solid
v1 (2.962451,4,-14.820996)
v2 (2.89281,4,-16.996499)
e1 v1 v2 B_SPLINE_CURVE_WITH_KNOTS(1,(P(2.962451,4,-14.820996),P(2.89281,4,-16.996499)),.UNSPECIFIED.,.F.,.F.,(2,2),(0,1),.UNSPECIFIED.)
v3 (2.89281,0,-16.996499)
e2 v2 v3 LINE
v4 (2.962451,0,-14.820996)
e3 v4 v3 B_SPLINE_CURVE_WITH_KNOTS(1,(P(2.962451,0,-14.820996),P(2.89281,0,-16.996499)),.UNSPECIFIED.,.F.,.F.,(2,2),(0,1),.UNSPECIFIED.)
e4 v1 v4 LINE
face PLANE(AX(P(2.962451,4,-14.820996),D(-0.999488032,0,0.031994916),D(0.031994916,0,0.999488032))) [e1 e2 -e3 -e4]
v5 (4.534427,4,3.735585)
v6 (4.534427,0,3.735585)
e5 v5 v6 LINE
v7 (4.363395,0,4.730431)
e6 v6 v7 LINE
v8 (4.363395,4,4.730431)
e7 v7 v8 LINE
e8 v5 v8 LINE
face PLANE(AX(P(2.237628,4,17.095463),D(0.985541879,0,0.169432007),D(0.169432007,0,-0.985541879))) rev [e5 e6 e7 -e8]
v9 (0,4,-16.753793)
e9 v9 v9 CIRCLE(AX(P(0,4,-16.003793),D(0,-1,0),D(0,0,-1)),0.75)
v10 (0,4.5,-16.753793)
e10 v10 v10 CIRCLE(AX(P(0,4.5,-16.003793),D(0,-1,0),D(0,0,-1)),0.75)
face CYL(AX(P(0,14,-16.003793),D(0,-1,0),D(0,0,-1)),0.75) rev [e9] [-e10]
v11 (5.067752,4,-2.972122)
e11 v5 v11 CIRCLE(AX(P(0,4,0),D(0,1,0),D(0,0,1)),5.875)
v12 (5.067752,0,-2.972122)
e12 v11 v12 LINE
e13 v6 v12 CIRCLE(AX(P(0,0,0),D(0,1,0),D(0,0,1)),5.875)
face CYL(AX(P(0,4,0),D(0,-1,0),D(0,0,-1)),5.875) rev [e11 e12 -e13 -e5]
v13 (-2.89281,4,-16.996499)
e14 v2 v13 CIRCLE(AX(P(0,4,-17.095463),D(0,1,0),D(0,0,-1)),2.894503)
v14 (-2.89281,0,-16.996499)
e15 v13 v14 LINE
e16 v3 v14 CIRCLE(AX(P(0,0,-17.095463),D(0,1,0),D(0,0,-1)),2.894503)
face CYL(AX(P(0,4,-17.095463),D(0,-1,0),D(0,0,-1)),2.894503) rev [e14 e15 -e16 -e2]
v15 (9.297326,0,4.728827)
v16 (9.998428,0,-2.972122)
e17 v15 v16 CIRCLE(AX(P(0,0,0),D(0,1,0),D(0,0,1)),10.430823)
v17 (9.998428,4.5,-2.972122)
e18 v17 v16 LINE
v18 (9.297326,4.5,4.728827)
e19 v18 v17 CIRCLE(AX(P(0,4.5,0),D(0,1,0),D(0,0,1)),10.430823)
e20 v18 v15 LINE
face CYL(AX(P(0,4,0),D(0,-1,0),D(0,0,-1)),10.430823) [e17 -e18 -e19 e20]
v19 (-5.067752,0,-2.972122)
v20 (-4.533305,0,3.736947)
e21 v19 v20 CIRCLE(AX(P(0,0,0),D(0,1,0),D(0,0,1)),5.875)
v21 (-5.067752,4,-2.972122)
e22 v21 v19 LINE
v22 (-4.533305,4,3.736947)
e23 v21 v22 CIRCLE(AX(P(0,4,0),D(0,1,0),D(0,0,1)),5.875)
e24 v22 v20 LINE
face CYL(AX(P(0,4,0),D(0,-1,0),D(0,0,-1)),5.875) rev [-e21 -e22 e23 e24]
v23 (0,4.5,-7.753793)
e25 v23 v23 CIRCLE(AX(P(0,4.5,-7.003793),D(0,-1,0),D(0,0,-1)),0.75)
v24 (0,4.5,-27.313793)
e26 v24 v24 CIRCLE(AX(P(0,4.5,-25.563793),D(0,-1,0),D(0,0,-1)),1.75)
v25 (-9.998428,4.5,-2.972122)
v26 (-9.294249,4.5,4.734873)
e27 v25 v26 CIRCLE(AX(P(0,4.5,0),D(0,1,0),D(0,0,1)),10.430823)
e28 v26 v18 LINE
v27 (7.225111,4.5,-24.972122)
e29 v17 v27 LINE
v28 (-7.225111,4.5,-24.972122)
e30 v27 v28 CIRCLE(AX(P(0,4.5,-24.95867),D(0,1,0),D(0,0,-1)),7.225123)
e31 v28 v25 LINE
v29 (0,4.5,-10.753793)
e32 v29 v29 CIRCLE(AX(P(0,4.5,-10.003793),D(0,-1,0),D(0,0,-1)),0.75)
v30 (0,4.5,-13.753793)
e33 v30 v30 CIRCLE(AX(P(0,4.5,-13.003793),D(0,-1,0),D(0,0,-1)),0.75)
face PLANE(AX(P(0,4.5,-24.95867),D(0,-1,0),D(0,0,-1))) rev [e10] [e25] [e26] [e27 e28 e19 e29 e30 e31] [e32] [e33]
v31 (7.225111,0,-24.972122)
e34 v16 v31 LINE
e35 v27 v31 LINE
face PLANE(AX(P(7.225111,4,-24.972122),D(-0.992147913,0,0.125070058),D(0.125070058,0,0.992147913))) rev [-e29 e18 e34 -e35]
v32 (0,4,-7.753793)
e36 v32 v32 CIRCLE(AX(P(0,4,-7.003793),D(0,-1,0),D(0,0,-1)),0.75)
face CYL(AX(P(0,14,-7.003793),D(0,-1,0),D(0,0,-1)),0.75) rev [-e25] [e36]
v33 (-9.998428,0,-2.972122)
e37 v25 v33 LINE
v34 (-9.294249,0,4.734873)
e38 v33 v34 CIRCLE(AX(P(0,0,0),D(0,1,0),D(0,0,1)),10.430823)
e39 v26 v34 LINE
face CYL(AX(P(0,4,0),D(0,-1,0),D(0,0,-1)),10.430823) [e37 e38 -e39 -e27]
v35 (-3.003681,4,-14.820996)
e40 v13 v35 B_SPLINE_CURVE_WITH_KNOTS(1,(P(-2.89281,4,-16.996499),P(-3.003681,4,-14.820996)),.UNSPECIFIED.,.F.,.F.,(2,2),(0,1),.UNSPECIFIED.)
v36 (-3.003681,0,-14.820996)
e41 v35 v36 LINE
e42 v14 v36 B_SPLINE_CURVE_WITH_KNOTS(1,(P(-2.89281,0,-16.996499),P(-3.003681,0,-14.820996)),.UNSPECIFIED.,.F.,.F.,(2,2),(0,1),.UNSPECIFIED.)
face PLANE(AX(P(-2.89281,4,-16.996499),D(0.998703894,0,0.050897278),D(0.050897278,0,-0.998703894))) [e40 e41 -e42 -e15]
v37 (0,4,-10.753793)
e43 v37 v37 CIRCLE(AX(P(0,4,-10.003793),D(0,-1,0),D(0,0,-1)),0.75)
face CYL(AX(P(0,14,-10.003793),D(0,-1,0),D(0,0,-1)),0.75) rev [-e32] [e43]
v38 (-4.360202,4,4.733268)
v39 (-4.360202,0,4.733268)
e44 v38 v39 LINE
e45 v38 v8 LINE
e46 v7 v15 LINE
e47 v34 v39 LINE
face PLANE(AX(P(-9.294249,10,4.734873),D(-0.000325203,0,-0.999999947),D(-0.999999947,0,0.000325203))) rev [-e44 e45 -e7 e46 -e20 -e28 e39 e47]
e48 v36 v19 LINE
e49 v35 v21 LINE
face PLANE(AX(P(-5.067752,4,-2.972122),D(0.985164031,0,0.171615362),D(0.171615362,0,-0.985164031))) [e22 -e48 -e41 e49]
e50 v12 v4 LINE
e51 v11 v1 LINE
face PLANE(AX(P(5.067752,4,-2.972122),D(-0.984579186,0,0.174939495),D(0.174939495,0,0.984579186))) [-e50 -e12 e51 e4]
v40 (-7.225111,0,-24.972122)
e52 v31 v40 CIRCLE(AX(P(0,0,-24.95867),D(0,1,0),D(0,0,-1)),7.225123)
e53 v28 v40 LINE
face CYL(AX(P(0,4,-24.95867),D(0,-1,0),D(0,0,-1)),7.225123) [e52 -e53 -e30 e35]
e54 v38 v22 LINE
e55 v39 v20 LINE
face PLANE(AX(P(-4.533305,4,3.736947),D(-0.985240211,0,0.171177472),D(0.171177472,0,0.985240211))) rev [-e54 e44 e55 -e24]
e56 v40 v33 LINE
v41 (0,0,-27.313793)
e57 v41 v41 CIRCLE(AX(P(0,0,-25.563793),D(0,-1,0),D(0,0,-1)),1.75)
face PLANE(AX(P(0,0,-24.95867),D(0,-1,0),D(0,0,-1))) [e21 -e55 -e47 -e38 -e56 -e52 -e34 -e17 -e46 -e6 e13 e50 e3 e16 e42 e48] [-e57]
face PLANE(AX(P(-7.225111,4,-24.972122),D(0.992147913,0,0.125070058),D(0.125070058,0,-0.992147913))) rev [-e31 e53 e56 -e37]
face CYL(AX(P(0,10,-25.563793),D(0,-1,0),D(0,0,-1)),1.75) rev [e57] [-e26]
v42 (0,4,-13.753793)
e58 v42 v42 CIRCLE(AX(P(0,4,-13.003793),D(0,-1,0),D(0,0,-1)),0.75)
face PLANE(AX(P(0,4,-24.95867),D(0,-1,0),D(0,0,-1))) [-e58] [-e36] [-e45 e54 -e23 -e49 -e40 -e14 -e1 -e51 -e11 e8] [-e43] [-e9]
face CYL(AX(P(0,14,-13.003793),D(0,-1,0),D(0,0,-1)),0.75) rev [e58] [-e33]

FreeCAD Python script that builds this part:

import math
import FreeCAD as App
import Part
import Sketcher
from FreeCAD import Vector

doc = App.newDocument("Part")
body = doc.addObject("PartDesign::Body", "Body")

# Sketch on XZ plane
sketch1 = doc.addObject("Sketcher::SketchObject", "Sketch")
body.addObject(sketch1)
sketch1.AttachmentSupport = (doc.XZ_Plane, [""])
sketch1.MapMode = "FlatFace"
sketch1.addGeometry(Part.LineSegment(Vector(-7.2, -25, 0), Vector(-10, -3, 0)), False)
sketch1.addGeometry(Part.ArcOfCircle(Part.Circle(Vector(0, 0, 0), Vector(0, 0, 1), 10.4), math.radians(-17), math.radians(197)), False)
sketch1.addGeometry(Part.LineSegment(Vector(10, -3, 0), Vector(7.2, -25, 0)), False)
sketch1.addGeometry(Part.ArcOfCircle(Part.Circle(Vector(0, -25, 0), Vector(0, 0, 1), 7.2), math.radians(-180), math.radians(0)), False)
sketch1.addGeometry(Part.ArcOfCircle(Part.Circle(Vector(0, 0, 0), Vector(0, 0, 1), 5.9), math.radians(-30), math.radians(210)), False)
sketch1.addGeometry(Part.LineSegment(Vector(-5.1, -3, 0), Vector(-3, -14.8, 0)), False)
sketch1.addGeometry(Part.LineSegment(Vector(-3, -14.8, 0), Vector(-2.9, -17, 0)), False)
sketch1.addGeometry(Part.ArcOfCircle(Part.Circle(Vector(0, -17.1, 0), Vector(0, 0, 1), 2.9), math.radians(178), math.radians(362)), False)
sketch1.addGeometry(Part.LineSegment(Vector(2.9, -17, 0), Vector(3, -14.8, 0)), False)
sketch1.addGeometry(Part.LineSegment(Vector(3, -14.8, 0), Vector(5.1, -3, 0)), False)
sketch1.addConstraint(Sketcher.Constraint("Coincident", 0, 2, 1, 2))
sketch1.addConstraint(Sketcher.Constraint("Coincident", 1, 1, 2, 1))
sketch1.addConstraint(Sketcher.Constraint("Coincident", 2, 2, 3, 2))
sketch1.addConstraint(Sketcher.Constraint("Coincident", 3, 1, 0, 1))
sketch1.addConstraint(Sketcher.Constraint("Coincident", 4, 2, 5, 1))
sketch1.addConstraint(Sketcher.Constraint("Coincident", 5, 2, 6, 1))
sketch1.addConstraint(Sketcher.Constraint("Coincident", 6, 2, 7, 1))
sketch1.addConstraint(Sketcher.Constraint("Coincident", 7, 2, 8, 1))
sketch1.addConstraint(Sketcher.Constraint("Coincident", 8, 2, 9, 1))
sketch1.addConstraint(Sketcher.Constraint("Coincident", 9, 2, 4, 1))
sketch1.addConstraint(Sketcher.Constraint("Coincident", 1, 3, -1, 1))
sketch1.addConstraint(Sketcher.Constraint("Coincident", 4, 3, -1, 1))
sketch1.addConstraint(Sketcher.Constraint("Symmetric", 2, 2, 3, 1, -2))
sketch1.addConstraint(Sketcher.Constraint("Symmetric", 6, 2, 7, 2, -2))
sketch1.addConstraint(Sketcher.Constraint("Horizontal", 0, 2, 1, 1))
sketch1.addConstraint(Sketcher.Constraint("Horizontal", 1, 1, 4, 2))
sketch1.addConstraint(Sketcher.Constraint("Horizontal", 5, 2, 8, 2))
sketch1.addConstraint(Sketcher.Constraint("Horizontal", 4, 2, 9, 2))
sketch1.addConstraint(Sketcher.Constraint("Radius", 4, 5.875))
sketch1.addConstraint(Sketcher.Constraint("DistanceY", 2, 2, 1, 1, 22.0))
sketch1.addConstraint(Sketcher.Constraint("Radius", 1, 10.430823))
sketch1.addConstraint(Sketcher.Constraint("Radius", 3, 7.225123))
sketch1.addConstraint(Sketcher.Constraint("Radius", 7, 2.894503))
sketch1.addConstraint(Sketcher.Constraint("DistanceY", 6, 2, -1, 1, 16.996499))
sketch1.addConstraint(Sketcher.Constraint("DistanceX", 3, 1, 6, 2, 4.3323))
sketch1.addConstraint(Sketcher.Constraint("DistanceX", 8, 2, 9, 2, 2.105301))
sketch1.addConstraint(Sketcher.Constraint("Distance", 5, 12.02731))
sketch1.addConstraint(Sketcher.Constraint("DistanceY", 3, 3, -1, 1, 24.95867))
sketch1.addConstraint(Sketcher.Constraint("DistanceX", 0, 2, -1, 1, 9.998428))
sketch1.addConstraint(Sketcher.Constraint("DistanceX", 5, 2, -1, 1, 3.003681))
pad1 = doc.addObject("PartDesign::Pad", "Pad")
body.addObject(pad1)
pad1.Profile = sketch1
pad1.Length = 4
pad1.Reversed = True

# Sketch on XZ plane
sketch2 = doc.addObject("Sketcher::SketchObject", "Sketch001")
body.addObject(sketch2)
sketch2.AttachmentSupport = (doc.XZ_Plane, [""])
sketch2.MapMode = "FlatFace"
sketch2.AttachmentOffset = App.Placement(Vector(0, 0, -4), App.Rotation())
sketch2.addGeometry(Part.LineSegment(Vector(-7, -25, 0), Vector(-10, -3, 0)), False)
sketch2.addGeometry(Part.ArcOfCircle(Part.Circle(Vector(0, 0, 0), Vector(0, 0, 1), 10), math.radians(-17), math.radians(197)), False)
sketch2.addGeometry(Part.LineSegment(Vector(10, -3, 0), Vector(7, -25, 0)), False)
sketch2.addGeometry(Part.ArcOfCircle(Part.Circle(Vector(0, -25, 0), Vector(0, 0, 1), 7), math.radians(-180), math.radians(0)), False)
sketch2.addConstraint(Sketcher.Constraint("Coincident", 0, 2, 1, 2))
sketch2.addConstraint(Sketcher.Constraint("Coincident", 1, 1, 2, 1))
sketch2.addConstraint(Sketcher.Constraint("Coincident", 2, 2, 3, 2))
sketch2.addConstraint(Sketcher.Constraint("Coincident", 3, 1, 0, 1))
sketch2.addConstraint(Sketcher.Constraint("Coincident", 1, 3, -1, 1))
sketch2.addConstraint(Sketcher.Constraint("Symmetric", 2, 2, 3, 1, -2))
sketch2.addConstraint(Sketcher.Constraint("Horizontal", 0, 2, 1, 1))
sketch2.addConstraint(Sketcher.Constraint("DistanceY", 2, 2, 1, 1, 22.0))
sketch2.addConstraint(Sketcher.Constraint("Radius", 1, 10.430823))
sketch2.addConstraint(Sketcher.Constraint("Radius", 3, 7.225123))
sketch2.addConstraint(Sketcher.Constraint("DistanceY", 3, 3, -1, 1, 24.95867))
sketch2.addConstraint(Sketcher.Constraint("DistanceX", 0, 2, -1, 1, 9.998428))
pad2 = doc.addObject("PartDesign::Pad", "Pad001")
body.addObject(pad2)
pad2.Profile = sketch2
pad2.Length = 0.5
pad2.Reversed = True

# Sketch on XZ plane
sketch3 = doc.addObject("Sketcher::SketchObject", "Sketch002")
body.addObject(sketch3)
sketch3.AttachmentSupport = (doc.XZ_Plane, [""])
sketch3.MapMode = "FlatFace"
sketch3.addGeometry(Part.LineSegment(Vector(2.2, 17.1, 0), Vector(-2.2, 17.1, 0)), False)
sketch3.addGeometry(Part.LineSegment(Vector(-2.2, 17.1, 0), Vector(-4.5, 3.7, 0)), False)
sketch3.addGeometry(Part.ArcOfCircle(Part.Circle(Vector(0, 0, 0), Vector(0, 0, 1), 5.9), math.radians(39), math.radians(141)), False)
sketch3.addGeometry(Part.LineSegment(Vector(4.5, 3.7, 0), Vector(2.2, 17.1, 0)), False)
sketch3.addConstraint(Sketcher.Constraint("Coincident", 0, 2, 1, 1))
sketch3.addConstraint(Sketcher.Constraint("Coincident", 1, 2, 2, 2))
sketch3.addConstraint(Sketcher.Constraint("Coincident", 2, 1, 3, 1))
sketch3.addConstraint(Sketcher.Constraint("Coincident", 3, 2, 0, 1))
sketch3.addConstraint(Sketcher.Constraint("Horizontal", 0))
sketch3.addConstraint(Sketcher.Constraint("Coincident", 2, 3, -1, 1))
sketch3.addConstraint(Sketcher.Constraint("Radius", 2, 5.875))
sketch3.addConstraint(Sketcher.Constraint("DistanceX", 0, 2, 0, 1, 4.45))
sketch3.addConstraint(Sketcher.Constraint("DistanceX", 0, 2, 2, 1, 6.746798))
sketch3.addConstraint(Sketcher.Constraint("Distance", 1, 13.558639))
sketch3.addConstraint(Sketcher.Constraint("Distance", 3, 13.55587))
sketch3.addConstraint(Sketcher.Constraint("DistanceX", 0, 2, -1, 1, 2.212372))
pocket1 = doc.addObject("PartDesign::Pocket", "Pocket")
body.addObject(pocket1)
pocket1.Profile = sketch3
pocket1.Length = 4

# Sketch on XZ plane
sketch4 = doc.addObject("Sketcher::SketchObject", "Sketch003")
body.addObject(sketch4)
sketch4.AttachmentSupport = (doc.XZ_Plane, [""])
sketch4.MapMode = "FlatFace"
sketch4.addGeometry(Part.LineSegment(Vector(-9, 5, 0), Vector(9, 5, 0)), False)
sketch4.addGeometry(Part.ArcOfCircle(Part.Circle(Vector(0, 0, 0), Vector(0, 0, 1), 10), math.radians(27), math.radians(153)), False)
sketch4.addConstraint(Sketcher.Constraint("Coincident", 0, 1, 1, 2))
sketch4.addConstraint(Sketcher.Constraint("Coincident", 1, 1, 0, 2))
sketch4.addConstraint(Sketcher.Constraint("Coincident", 1, 3, -1, 1))
sketch4.addConstraint(Sketcher.Constraint("Radius", 1, 10.430823))
sketch4.addConstraint(Sketcher.Constraint("DistanceX", 0, 1, -1, 1, 9.294249))
sketch4.addConstraint(Sketcher.Constraint("Distance", 0, 18.591576))
pocket2 = doc.addObject("PartDesign::Pocket", "Pocket001")
body.addObject(pocket2)
pocket2.Profile = sketch4
pocket2.Length = 10

# Sketch on XZ plane
sketch5 = doc.addObject("Sketcher::SketchObject", "Sketch004")
body.addObject(sketch5)
sketch5.AttachmentSupport = (doc.XZ_Plane, [""])
sketch5.MapMode = "FlatFace"
sketch5.addGeometry(Part.Circle(Vector(0, -25.6, 0), Vector(0, 0, 1), 1.8), False)
sketch5.addConstraint(Sketcher.Constraint("PointOnObject", 0, 3, -2))
sketch5.addConstraint(Sketcher.Constraint("Diameter", 0, 3.5))
sketch5.addConstraint(Sketcher.Constraint("DistanceY", 0, 3, -1, 1, 25.563793))
pocket3 = doc.addObject("PartDesign::Pocket", "Pocket002")
body.addObject(pocket3)
pocket3.Profile = sketch5
pocket3.Length = 10

# Sketch on XZ plane
sketch6 = doc.addObject("Sketcher::SketchObject", "Sketch005")
body.addObject(sketch6)
sketch6.AttachmentSupport = (doc.XZ_Plane, [""])
sketch6.MapMode = "FlatFace"
sketch6.AttachmentOffset = App.Placement(Vector(0, 0, -4), App.Rotation())
sketch6.addGeometry(Part.Circle(Vector(0, -16, 0), Vector(0, 0, 1), 0.8), False)
sketch6.addGeometry(Part.Circle(Vector(0, -13, 0), Vector(0, 0, 1), 0.8), False)
sketch6.addGeometry(Part.Circle(Vector(0, -10, 0), Vector(0, 0, 1), 0.8), False)
sketch6.addGeometry(Part.Circle(Vector(0, -7, 0), Vector(0, 0, 1), 0.8), False)
sketch6.addConstraint(Sketcher.Constraint("Equal", 0, 1))
sketch6.addConstraint(Sketcher.Constraint("Equal", 1, 2))
sketch6.addConstraint(Sketcher.Constraint("Equal", 2, 3))
sketch6.addConstraint(Sketcher.Constraint("PointOnObject", 0, 3, -2))
sketch6.addConstraint(Sketcher.Constraint("PointOnObject", 1, 3, -2))
sketch6.addConstraint(Sketcher.Constraint("PointOnObject", 2, 3, -2))
sketch6.addConstraint(Sketcher.Constraint("PointOnObject", 3, 3, -2))
sketch6.addConstraint(Sketcher.Constraint("Diameter", 0, 1.5))
sketch6.addConstraint(Sketcher.Constraint("DistanceY", 0, 3, 1, 3, 3.0))
sketch6.addConstraint(Sketcher.Constraint("DistanceY", 1, 3, 2, 3, 3.0))
sketch6.addConstraint(Sketcher.Constraint("DistanceY", 2, 3, 3, 3, 3.0))
sketch6.addConstraint(Sketcher.Constraint("DistanceY", 0, 3, -1, 1, 16.003793))
pocket4 = doc.addObject("PartDesign::Pocket", "Pocket003")
body.addObject(pocket4)
pocket4.Profile = sketch6
pocket4.Length = 10

doc.recompute()
